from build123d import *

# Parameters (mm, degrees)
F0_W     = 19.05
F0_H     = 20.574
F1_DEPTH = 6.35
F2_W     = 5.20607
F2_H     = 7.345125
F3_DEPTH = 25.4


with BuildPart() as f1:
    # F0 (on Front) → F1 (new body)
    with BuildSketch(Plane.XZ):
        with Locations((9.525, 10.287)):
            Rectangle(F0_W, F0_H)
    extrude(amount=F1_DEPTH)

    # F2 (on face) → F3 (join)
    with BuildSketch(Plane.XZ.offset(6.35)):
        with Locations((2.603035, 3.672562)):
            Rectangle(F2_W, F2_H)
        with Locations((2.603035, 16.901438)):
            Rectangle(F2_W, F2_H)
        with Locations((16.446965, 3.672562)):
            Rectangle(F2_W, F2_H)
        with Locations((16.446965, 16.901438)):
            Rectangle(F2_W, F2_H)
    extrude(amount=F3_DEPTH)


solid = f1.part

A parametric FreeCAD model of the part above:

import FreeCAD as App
import Part
import Sketcher

V = App.Vector
Q = App.Units.Quantity

doc = App.newDocument("Part")
params = doc.addObject("Spreadsheet::Sheet", "Params")
for row, (alias, value) in enumerate([
    ("sketch1_width", "0.75 in"),
    ("sketch1_height", "0.81 in"),
    ("pad1_length", "0.25 in"),
    ("pad2_length", "1 in"),
], start=1):
    params.set(f"A{row}", alias)
    params.set(f"B{row}", "=" + value)
    params.setAlias(f"B{row}", alias)

body = doc.addObject("PartDesign::Body", "Body")

# Sketch on XZ plane
sketch1 = doc.addObject("Sketcher::SketchObject", "Sketch")
body.addObject(sketch1)
sketch1.AttachmentSupport = (doc.XZ_Plane, [""])
sketch1.MapMode = "FlatFace"
sketch1.addGeometry([
    Part.LineSegment(V(0, 20.574, 0), V(0, 0, 0)),
    Part.LineSegment(V(0, 0, 0), V(19.05, 0, 0)),
    Part.LineSegment(V(19.05, 0, 0), V(19.05, 20.574, 0)),
    Part.LineSegment(V(19.05, 20.574, 0), V(0, 20.574, 0)),
], False)
sketch1.addConstraint([
    Sketcher.Constraint("Coincident", 0, 2, 1, 1),
    Sketcher.Constraint("Coincident", 1, 2, 2, 1),
    Sketcher.Constraint("Coincident", 2, 2, 3, 1),
    Sketcher.Constraint("Coincident", 3, 2, 0, 1),
    Sketcher.Constraint("Vertical", 0),
    Sketcher.Constraint("Horizontal", 1),
    Sketcher.Constraint("Vertical", 2),
    Sketcher.Constraint("Horizontal", 3),
    Sketcher.Constraint("Coincident", 0, 2, -1, 1),
    Sketcher.Constraint("DistanceX", 1, 1, 1, 2, Q("0.75 in")),
    Sketcher.Constraint("DistanceY", 0, 2, 0, 1, Q("0.81 in")),
])
sketch1.setExpression("Constraints[9]", "Params.sketch1_width")
sketch1.setExpression("Constraints[10]", "Params.sketch1_height")
pad1 = doc.addObject("PartDesign::Pad", "Pad")
body.addObject(pad1)
pad1.Profile = sketch1
pad1.setExpression("Length", "Params.pad1_length")

# Sketch on XZ plane
sketch2 = doc.addObject("Sketcher::SketchObject", "Sketch001")
body.addObject(sketch2)
sketch2.AttachmentSupport = (doc.XZ_Plane, [""])
sketch2.MapMode = "FlatFace"
sketch2.AttachmentOffset = App.Placement(V(0, 0, 0.25 * 25.4), App.Rotation())
sketch2.addGeometry([
    Part.LineSegment(V(0, 7.345124, 0), V(0, 0, 0)),  # 0
    Part.LineSegment(V(0, 0, 0), V(5.20607, 0, 0)),  # 1
    Part.LineSegment(V(5.20607, 0, 0), V(5.20607, 7.345124, 0)),  # 2
    Part.LineSegment(V(5.20607, 7.345124, 0), V(0, 7.345124, 0)),  # 3
    Part.LineSegment(V(0, 20.574001, 0), V(0, 13.228875, 0)),  # 4
    Part.LineSegment(V(0, 13.228875, 0), V(5.20607, 13.228875, 0)),  # 5
    Part.LineSegment(V(5.20607, 13.228875, 0), V(5.20607, 20.574001, 0)),  # 6
    Part.LineSegment(V(5.20607, 20.574001, 0), V(0, 20.574001, 0)),  # 7
    Part.LineSegment(V(13.84393, 7.345124, 0), V(13.84393, 0, 0)),  # 8
    Part.LineSegment(V(13.84393, 0, 0), V(19.05, 0, 0)),  # 9
    Part.LineSegment(V(19.05, 0, 0), V(19.05, 7.345124, 0)),  # 10
    Part.LineSegment(V(19.05, 7.345124, 0), V(13.84393, 7.345124, 0)),  # 11
    Part.LineSegment(V(13.84393, 20.574001, 0), V(13.84393, 13.228875, 0)),  # 12
    Part.LineSegment(V(13.84393, 13.228875, 0), V(19.05, 13.228875, 0)),  # 13
    Part.LineSegment(V(19.05, 13.228875, 0), V(19.05, 20.574001, 0)),  # 14
    Part.LineSegment(V(19.05, 20.574001, 0), V(13.84393, 20.574001, 0)),  # 15
], False)
sketch2.addConstraint([
    Sketcher.Constraint("Coincident", 0, 2, 1, 1),
    Sketcher.Constraint("Coincident", 1, 2, 2, 1),
    Sketcher.Constraint("Coincident", 2, 2, 3, 1),
    Sketcher.Constraint("Coincident", 3, 2, 0, 1),
    Sketcher.Constraint("Coincident", 4, 2, 5, 1),
    Sketcher.Constraint("Coincident", 5, 2, 6, 1),
    Sketcher.Constraint("Coincident", 6, 2, 7, 1),
    Sketcher.Constraint("Coincident", 7, 2, 4, 1),
    Sketcher.Constraint("Coincident", 8, 2, 9, 1),
    Sketcher.Constraint("Coincident", 9, 2, 10, 1),
    Sketcher.Constraint("Coincident", 10, 2, 11, 1),
    Sketcher.Constraint("Coincident", 11, 2, 8, 1),
    Sketcher.Constraint("Coincident", 12, 2, 13, 1),
    Sketcher.Constraint("Coincident", 13, 2, 14, 1),
    Sketcher.Constraint("Coincident", 14, 2, 15, 1),
    Sketcher.Constraint("Coincident", 15, 2, 12, 1),
    Sketcher.Constraint("Vertical", 0),
    Sketcher.Constraint("Horizontal", 1),
    Sketcher.Constraint("Vertical", 2),
    Sketcher.Constraint("Horizontal", 3),
    Sketcher.Constraint("Vertical", 4),
    Sketcher.Constraint("Horizontal", 5),
    Sketcher.Constraint("Vertical", 6),
    Sketcher.Constraint("Horizontal", 7),
    Sketcher.Constraint("Vertical", 8),
    Sketcher.Constraint("Horizontal", 9),
    Sketcher.Constraint("Vertical", 10),
    Sketcher.Constraint("Horizontal", 11),
    Sketcher.Constraint("Vertical", 12),
    Sketcher.Constraint("Horizontal", 13),
    Sketcher.Constraint("Vertical", 14),
    Sketcher.Constraint("Horizontal", 15),
    Sketcher.Constraint("Coincident", 0, 2, -1, 1),
    Sketcher.Constraint("PointOnObject", 4, 2, -2),
    Sketcher.Constraint("PointOnObject", 8, 2, -1),
    Sketcher.Constraint("Horizontal", 3, 2, 10, 2),
    Sketcher.Constraint("Horizontal", 5, 2, 12, 2),
    Sketcher.Constraint("Horizontal", 7, 2, 14, 2),
    Sketcher.Constraint("Vertical", 2, 2, 5, 2),
    Sketcher.Constraint("Vertical", 11, 2, 12, 2),
    Sketcher.Constraint("Vertical", 10, 2, 13, 2),
    Sketcher.Constraint("Equal", 7, 9),
    Sketcher.Constraint("Equal", 2, 4),
    Sketcher.Constraint("DistanceY", -1, 1, 6, 2, Q("0.81 in")),
    Sketcher.Constraint("DistanceX", -1, 1, 9, 2, Q("0.75 in")),
    Sketcher.Constraint("DistanceX", 1, 1, 1, 2, 5.20607),
    Sketcher.Constraint("DistanceY", 0, 2, 0, 1, 7.345125),
])
pad2 = doc.addObject("PartDesign::Pad", "Pad001")
body.addObject(pad2)
pad2.Profile = sketch2
pad2.setExpression("Length", "Params.pad2_length")

doc.recompute()
